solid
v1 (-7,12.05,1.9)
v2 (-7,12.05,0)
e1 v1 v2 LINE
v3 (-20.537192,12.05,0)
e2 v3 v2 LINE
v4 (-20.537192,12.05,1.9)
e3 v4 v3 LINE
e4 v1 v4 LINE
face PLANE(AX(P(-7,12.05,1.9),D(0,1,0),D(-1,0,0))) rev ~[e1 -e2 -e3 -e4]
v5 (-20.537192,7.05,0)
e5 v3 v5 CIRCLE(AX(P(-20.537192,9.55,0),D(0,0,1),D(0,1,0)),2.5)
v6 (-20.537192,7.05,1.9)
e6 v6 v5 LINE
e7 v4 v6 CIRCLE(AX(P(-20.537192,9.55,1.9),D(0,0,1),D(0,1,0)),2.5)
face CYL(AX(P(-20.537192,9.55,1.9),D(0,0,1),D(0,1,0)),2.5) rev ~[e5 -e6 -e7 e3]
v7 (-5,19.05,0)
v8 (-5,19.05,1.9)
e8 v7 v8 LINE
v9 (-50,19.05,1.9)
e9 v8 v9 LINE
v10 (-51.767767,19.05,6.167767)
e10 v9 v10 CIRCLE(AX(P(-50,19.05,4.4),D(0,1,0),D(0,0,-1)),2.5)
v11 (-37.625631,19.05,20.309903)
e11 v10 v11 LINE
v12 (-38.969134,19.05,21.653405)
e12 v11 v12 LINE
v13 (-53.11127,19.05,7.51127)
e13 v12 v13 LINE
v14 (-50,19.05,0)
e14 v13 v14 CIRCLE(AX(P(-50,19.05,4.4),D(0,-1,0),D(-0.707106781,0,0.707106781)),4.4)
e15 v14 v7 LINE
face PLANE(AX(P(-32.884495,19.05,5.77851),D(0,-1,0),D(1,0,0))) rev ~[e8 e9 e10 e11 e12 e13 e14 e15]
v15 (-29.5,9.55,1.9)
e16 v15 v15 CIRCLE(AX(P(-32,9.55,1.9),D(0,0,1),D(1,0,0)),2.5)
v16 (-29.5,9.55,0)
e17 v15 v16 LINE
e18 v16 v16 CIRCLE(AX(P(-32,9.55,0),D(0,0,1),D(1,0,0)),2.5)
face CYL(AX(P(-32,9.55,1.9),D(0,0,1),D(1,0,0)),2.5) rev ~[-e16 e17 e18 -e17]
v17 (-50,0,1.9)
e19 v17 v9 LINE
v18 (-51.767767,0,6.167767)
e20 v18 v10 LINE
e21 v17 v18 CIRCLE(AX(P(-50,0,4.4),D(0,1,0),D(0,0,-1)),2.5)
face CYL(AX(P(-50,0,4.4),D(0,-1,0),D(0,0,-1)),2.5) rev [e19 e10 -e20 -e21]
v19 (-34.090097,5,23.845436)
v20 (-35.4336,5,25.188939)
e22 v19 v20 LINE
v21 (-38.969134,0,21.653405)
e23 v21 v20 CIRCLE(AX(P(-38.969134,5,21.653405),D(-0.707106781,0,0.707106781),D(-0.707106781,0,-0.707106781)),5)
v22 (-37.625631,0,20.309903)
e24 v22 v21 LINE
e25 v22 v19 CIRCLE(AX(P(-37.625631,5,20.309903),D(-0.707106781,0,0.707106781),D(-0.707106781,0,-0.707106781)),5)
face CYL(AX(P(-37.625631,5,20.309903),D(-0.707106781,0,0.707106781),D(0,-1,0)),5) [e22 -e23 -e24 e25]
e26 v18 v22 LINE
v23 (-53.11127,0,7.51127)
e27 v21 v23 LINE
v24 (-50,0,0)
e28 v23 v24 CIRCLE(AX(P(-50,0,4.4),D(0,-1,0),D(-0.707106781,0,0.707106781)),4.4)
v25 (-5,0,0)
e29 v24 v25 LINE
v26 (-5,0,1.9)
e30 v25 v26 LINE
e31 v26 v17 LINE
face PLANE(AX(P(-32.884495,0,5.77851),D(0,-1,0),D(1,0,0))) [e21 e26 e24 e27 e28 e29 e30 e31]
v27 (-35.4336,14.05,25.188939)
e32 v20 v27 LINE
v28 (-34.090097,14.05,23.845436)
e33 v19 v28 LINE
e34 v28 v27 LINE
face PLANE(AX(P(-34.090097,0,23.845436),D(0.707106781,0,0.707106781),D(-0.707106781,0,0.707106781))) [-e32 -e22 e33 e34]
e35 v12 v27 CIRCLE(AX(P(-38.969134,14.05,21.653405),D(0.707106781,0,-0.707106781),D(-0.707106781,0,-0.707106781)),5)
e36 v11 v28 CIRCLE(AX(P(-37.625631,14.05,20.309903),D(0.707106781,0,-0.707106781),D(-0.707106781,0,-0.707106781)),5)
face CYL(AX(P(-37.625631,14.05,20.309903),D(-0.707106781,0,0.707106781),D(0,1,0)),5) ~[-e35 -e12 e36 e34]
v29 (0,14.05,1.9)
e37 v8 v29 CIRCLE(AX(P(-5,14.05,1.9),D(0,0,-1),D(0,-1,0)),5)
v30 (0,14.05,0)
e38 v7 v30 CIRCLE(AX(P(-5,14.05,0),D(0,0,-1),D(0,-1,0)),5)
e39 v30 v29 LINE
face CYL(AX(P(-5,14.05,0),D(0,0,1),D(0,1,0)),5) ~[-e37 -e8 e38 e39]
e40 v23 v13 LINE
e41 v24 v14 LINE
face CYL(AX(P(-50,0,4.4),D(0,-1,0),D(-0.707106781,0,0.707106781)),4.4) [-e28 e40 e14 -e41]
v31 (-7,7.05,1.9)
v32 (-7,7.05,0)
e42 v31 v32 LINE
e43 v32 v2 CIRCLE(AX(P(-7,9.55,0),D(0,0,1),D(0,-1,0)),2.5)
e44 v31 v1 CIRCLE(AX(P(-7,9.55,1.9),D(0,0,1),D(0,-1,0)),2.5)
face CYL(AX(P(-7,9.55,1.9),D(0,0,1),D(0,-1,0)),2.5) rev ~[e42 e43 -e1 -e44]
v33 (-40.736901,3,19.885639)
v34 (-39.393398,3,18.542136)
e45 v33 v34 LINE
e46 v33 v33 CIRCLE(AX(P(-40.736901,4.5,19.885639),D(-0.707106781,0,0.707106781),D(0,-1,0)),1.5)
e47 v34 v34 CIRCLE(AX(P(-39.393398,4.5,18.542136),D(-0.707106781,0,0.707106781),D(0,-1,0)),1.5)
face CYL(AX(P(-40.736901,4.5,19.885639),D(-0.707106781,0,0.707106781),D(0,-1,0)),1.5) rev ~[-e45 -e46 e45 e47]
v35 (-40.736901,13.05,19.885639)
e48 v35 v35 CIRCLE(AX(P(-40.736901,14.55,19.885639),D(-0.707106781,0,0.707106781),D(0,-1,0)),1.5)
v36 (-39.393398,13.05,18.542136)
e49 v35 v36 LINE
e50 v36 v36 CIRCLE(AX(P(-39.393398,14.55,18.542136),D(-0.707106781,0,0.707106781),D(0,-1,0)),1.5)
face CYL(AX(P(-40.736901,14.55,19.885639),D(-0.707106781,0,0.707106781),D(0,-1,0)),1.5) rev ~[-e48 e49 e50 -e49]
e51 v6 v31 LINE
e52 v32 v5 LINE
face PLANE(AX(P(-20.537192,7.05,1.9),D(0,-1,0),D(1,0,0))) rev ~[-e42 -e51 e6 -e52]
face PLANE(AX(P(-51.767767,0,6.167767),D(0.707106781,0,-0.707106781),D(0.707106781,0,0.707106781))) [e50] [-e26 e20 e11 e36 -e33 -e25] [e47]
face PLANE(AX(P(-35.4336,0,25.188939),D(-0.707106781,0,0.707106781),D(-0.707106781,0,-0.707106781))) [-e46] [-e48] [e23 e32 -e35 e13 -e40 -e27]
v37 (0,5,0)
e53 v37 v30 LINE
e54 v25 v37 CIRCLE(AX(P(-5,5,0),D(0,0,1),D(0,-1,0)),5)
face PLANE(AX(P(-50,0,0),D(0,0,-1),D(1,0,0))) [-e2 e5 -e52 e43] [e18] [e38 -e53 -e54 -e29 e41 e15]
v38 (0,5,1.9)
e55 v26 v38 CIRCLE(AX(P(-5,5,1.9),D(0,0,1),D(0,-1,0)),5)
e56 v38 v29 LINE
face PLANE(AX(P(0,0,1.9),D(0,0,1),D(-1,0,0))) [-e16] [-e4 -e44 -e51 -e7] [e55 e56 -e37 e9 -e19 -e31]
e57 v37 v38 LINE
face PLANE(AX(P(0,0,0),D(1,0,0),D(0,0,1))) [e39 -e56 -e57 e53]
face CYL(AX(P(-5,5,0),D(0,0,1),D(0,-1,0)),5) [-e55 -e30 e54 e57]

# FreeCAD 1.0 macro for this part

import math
import FreeCAD as App
import Part
import Sketcher
from FreeCAD import Vector
Q = App.Units.Quantity


def edges_at(feature, points):
    """Names of the edges that pass closest to the given points."""
    edges = feature.Shape.Edges
    near = lambda p: min(range(len(edges)), key=lambda i: edges[i].distToShape(Part.Vertex(*p))[0])
    return sorted({f"Edge{near(p) + 1}" for p in points})

doc = App.newDocument("Part")
body = doc.addObject("PartDesign::Body", "Body")

# Sketch on XZ plane
sketch1 = doc.addObject("Sketcher::SketchObject", "Sketch")
body.addObject(sketch1)
sketch1.AttachmentSupport = (doc.XZ_Plane, [""])
sketch1.MapMode = "FlatFace"
sketch1.addGeometry([
    Part.LineSegment(Vector(-50, 0, 0), Vector(0, 0, 0)),  # 0
    Part.LineSegment(Vector(0, 0, 0), Vector(0, 1.9, 0)),  # 1
    Part.LineSegment(Vector(0, 1.9, 0), Vector(-50, 1.9, 0)),  # 2
    Part.ArcOfCircle(Part.Circle(Vector(-50, 4.4, 0), Vector(0, 0, 1), 2.5), math.radians(135), math.radians(270)),  # 3
    Part.LineSegment(Vector(-51.8, 6.2, 0), Vector(-34.1, 23.8, 0)),  # 4
    Part.LineSegment(Vector(-34.1, 23.8, 0), Vector(-35.4, 25.2, 0)),  # 5
    Part.LineSegment(Vector(-35.4, 25.2, 0), Vector(-53.1, 7.5, 0)),  # 6
    Part.ArcOfCircle(Part.Circle(Vector(-50, 4.4, 0), Vector(0, 0, 1), 4.4), math.radians(135), math.radians(270)),  # 7
], False)
sketch1.addConstraint([
    Sketcher.Constraint("Coincident", 0, 2, 1, 1),
    Sketcher.Constraint("Coincident", 1, 2, 2, 1),
    Sketcher.Constraint("Tangent", 2, 2, 3, 2),
    Sketcher.Constraint("Tangent", 3, 1, 4, 1),
    Sketcher.Constraint("Coincident", 4, 2, 5, 1),
    Sketcher.Constraint("Coincident", 5, 2, 6, 1),
    Sketcher.Constraint("Tangent", 6, 2, 7, 1),
    Sketcher.Constraint("Tangent", 7, 2, 0, 1),
    Sketcher.Constraint("Horizontal", 0),
    Sketcher.Constraint("Vertical", 1),
    Sketcher.Constraint("Horizontal", 2),
    Sketcher.Constraint("Coincident", 0, 2, -1, 1),
    Sketcher.Constraint("Coincident", 7, 3, 3, 3),
    Sketcher.Constraint("Perpendicular", 4, 5),
    Sketcher.Constraint("Perpendicular", 5, 6),
    Sketcher.Constraint("Radius", 3, Q("2.5 mm")),
    Sketcher.Constraint("Radius", 7, Q("4.4 mm")),
    Sketcher.Constraint("DistanceX", 0, 1, 0, 2, Q("50 mm")),
    Sketcher.Constraint("Angle", 4, Q("45 deg")),
    Sketcher.Constraint("Distance", 4, Q("25 mm")),
])
pad1 = doc.addObject("PartDesign::Pad", "Pad")
body.addObject(pad1)
pad1.Profile = sketch1
pad1.Length = 19.05
pad1.Reversed = True

# Sketch on an angled plane
sketch2 = doc.addObject("Sketcher::SketchObject", "Sketch001")
body.addObject(sketch2)
sketch2.Placement = App.Placement(Vector(-30.31127, 0, 30.31127), App.Rotation(Vector(0, -1, 0), Vector(0.707106781, 0, 0.707106781), Vector(-0.707106781, 0, 0.707106781), "ZXY"))
sketch2.addGeometry([
    Part.Circle(Vector(-14.6, -14.7, 0), Vector(0, 0, 1), 1.5),
    Part.Circle(Vector(-4.5, -14.7, 0), Vector(0, 0, 1), 1.5),
], False)
sketch2.addConstraint([
    Sketcher.Constraint("Equal", 0, 1),
    Sketcher.Constraint("Horizontal", 0, 3, 1, 3),
    Sketcher.Constraint("Diameter", 0, Q("3 mm")),
    Sketcher.Constraint("DistanceX", 1, 3, -1, 1, Q("4.5 mm")),
    Sketcher.Constraint("DistanceX", 0, 3, -1, 1, Q("14.55 mm")),
    Sketcher.Constraint("DistanceY", 0, 3, -1, 1, Q("14.744069 mm")),
])
pocket1 = doc.addObject("PartDesign::Pocket", "Pocket")
body.addObject(pocket1)
pocket1.Profile = sketch2
pocket1.Length = 1.9

# Sketch on XY plane
sketch3 = doc.addObject("Sketcher::SketchObject", "Sketch002")
body.addObject(sketch3)
sketch3.AttachmentSupport = (doc.XY_Plane, [""])
sketch3.MapMode = "FlatFace"
sketch3.AttachmentOffset = App.Placement(Vector(0, 0, 1.9), App.Rotation())
sketch3.addGeometry([
    Part.LineSegment(Vector(-7, 12.1, 0), Vector(-20.5, 12.1, 0)),  # 0
    Part.ArcOfCircle(Part.Circle(Vector(-20.5, 9.6, 0), Vector(0, 0, 1), 2.5), math.radians(90), math.radians(270)),  # 1
    Part.LineSegment(Vector(-20.5, 7, 0), Vector(-7, 7, 0)),  # 2
    Part.ArcOfCircle(Part.Circle(Vector(-7, 9.6, 0), Vector(0, 0, 1), 2.5), math.radians(-90), math.radians(90)),  # 3
    Part.Circle(Vector(-32, 9.6, 0), Vector(0, 0, 1), 2.5),  # 4
], False)
sketch3.addConstraint([
    Sketcher.Constraint("Tangent", 0, 2, 1, 1),
    Sketcher.Constraint("Tangent", 1, 2, 2, 1),
    Sketcher.Constraint("Tangent", 2, 2, 3, 1),
    Sketcher.Constraint("Tangent", 3, 2, 0, 1),
    Sketcher.Constraint("Horizontal", 0),
    Sketcher.Constraint("Horizontal", 2),
    Sketcher.Constraint("Equal", 3, 4),
    Sketcher.Constraint("Horizontal", 3, 3, 4, 3),
    Sketcher.Constraint("Diameter", 4, Q("5 mm")),
    Sketcher.Constraint("DistanceX", 3, 3, -1, 1, Q("7 mm")),
    Sketcher.Constraint("DistanceX", 4, 3, -1, 1, Q("32 mm")),
    Sketcher.Constraint("DistanceY", -1, 1, 1, 3, Q("9.55 mm")),
    Sketcher.Constraint("DistanceX", 0, 2, 0, 1, Q("13.537192 mm")),
])
pocket2 = doc.addObject("PartDesign::Pocket", "Pocket001")
body.addObject(pocket2)
pocket2.Profile = sketch3
pocket2.Length = 25
doc.recompute()

fillet = doc.addObject("PartDesign::Fillet", "Fillet")
body.addObject(fillet)
fillet.Base = (pocket2, edges_at(pocket2, [
    (-34.762, 0, 24.517),
    (0, 0, 0.95),
    (-34.762, 19.05, 24.517),
    (0, 19.05, 0.95),
]))
fillet.Radius = 5

doc.recompute()
